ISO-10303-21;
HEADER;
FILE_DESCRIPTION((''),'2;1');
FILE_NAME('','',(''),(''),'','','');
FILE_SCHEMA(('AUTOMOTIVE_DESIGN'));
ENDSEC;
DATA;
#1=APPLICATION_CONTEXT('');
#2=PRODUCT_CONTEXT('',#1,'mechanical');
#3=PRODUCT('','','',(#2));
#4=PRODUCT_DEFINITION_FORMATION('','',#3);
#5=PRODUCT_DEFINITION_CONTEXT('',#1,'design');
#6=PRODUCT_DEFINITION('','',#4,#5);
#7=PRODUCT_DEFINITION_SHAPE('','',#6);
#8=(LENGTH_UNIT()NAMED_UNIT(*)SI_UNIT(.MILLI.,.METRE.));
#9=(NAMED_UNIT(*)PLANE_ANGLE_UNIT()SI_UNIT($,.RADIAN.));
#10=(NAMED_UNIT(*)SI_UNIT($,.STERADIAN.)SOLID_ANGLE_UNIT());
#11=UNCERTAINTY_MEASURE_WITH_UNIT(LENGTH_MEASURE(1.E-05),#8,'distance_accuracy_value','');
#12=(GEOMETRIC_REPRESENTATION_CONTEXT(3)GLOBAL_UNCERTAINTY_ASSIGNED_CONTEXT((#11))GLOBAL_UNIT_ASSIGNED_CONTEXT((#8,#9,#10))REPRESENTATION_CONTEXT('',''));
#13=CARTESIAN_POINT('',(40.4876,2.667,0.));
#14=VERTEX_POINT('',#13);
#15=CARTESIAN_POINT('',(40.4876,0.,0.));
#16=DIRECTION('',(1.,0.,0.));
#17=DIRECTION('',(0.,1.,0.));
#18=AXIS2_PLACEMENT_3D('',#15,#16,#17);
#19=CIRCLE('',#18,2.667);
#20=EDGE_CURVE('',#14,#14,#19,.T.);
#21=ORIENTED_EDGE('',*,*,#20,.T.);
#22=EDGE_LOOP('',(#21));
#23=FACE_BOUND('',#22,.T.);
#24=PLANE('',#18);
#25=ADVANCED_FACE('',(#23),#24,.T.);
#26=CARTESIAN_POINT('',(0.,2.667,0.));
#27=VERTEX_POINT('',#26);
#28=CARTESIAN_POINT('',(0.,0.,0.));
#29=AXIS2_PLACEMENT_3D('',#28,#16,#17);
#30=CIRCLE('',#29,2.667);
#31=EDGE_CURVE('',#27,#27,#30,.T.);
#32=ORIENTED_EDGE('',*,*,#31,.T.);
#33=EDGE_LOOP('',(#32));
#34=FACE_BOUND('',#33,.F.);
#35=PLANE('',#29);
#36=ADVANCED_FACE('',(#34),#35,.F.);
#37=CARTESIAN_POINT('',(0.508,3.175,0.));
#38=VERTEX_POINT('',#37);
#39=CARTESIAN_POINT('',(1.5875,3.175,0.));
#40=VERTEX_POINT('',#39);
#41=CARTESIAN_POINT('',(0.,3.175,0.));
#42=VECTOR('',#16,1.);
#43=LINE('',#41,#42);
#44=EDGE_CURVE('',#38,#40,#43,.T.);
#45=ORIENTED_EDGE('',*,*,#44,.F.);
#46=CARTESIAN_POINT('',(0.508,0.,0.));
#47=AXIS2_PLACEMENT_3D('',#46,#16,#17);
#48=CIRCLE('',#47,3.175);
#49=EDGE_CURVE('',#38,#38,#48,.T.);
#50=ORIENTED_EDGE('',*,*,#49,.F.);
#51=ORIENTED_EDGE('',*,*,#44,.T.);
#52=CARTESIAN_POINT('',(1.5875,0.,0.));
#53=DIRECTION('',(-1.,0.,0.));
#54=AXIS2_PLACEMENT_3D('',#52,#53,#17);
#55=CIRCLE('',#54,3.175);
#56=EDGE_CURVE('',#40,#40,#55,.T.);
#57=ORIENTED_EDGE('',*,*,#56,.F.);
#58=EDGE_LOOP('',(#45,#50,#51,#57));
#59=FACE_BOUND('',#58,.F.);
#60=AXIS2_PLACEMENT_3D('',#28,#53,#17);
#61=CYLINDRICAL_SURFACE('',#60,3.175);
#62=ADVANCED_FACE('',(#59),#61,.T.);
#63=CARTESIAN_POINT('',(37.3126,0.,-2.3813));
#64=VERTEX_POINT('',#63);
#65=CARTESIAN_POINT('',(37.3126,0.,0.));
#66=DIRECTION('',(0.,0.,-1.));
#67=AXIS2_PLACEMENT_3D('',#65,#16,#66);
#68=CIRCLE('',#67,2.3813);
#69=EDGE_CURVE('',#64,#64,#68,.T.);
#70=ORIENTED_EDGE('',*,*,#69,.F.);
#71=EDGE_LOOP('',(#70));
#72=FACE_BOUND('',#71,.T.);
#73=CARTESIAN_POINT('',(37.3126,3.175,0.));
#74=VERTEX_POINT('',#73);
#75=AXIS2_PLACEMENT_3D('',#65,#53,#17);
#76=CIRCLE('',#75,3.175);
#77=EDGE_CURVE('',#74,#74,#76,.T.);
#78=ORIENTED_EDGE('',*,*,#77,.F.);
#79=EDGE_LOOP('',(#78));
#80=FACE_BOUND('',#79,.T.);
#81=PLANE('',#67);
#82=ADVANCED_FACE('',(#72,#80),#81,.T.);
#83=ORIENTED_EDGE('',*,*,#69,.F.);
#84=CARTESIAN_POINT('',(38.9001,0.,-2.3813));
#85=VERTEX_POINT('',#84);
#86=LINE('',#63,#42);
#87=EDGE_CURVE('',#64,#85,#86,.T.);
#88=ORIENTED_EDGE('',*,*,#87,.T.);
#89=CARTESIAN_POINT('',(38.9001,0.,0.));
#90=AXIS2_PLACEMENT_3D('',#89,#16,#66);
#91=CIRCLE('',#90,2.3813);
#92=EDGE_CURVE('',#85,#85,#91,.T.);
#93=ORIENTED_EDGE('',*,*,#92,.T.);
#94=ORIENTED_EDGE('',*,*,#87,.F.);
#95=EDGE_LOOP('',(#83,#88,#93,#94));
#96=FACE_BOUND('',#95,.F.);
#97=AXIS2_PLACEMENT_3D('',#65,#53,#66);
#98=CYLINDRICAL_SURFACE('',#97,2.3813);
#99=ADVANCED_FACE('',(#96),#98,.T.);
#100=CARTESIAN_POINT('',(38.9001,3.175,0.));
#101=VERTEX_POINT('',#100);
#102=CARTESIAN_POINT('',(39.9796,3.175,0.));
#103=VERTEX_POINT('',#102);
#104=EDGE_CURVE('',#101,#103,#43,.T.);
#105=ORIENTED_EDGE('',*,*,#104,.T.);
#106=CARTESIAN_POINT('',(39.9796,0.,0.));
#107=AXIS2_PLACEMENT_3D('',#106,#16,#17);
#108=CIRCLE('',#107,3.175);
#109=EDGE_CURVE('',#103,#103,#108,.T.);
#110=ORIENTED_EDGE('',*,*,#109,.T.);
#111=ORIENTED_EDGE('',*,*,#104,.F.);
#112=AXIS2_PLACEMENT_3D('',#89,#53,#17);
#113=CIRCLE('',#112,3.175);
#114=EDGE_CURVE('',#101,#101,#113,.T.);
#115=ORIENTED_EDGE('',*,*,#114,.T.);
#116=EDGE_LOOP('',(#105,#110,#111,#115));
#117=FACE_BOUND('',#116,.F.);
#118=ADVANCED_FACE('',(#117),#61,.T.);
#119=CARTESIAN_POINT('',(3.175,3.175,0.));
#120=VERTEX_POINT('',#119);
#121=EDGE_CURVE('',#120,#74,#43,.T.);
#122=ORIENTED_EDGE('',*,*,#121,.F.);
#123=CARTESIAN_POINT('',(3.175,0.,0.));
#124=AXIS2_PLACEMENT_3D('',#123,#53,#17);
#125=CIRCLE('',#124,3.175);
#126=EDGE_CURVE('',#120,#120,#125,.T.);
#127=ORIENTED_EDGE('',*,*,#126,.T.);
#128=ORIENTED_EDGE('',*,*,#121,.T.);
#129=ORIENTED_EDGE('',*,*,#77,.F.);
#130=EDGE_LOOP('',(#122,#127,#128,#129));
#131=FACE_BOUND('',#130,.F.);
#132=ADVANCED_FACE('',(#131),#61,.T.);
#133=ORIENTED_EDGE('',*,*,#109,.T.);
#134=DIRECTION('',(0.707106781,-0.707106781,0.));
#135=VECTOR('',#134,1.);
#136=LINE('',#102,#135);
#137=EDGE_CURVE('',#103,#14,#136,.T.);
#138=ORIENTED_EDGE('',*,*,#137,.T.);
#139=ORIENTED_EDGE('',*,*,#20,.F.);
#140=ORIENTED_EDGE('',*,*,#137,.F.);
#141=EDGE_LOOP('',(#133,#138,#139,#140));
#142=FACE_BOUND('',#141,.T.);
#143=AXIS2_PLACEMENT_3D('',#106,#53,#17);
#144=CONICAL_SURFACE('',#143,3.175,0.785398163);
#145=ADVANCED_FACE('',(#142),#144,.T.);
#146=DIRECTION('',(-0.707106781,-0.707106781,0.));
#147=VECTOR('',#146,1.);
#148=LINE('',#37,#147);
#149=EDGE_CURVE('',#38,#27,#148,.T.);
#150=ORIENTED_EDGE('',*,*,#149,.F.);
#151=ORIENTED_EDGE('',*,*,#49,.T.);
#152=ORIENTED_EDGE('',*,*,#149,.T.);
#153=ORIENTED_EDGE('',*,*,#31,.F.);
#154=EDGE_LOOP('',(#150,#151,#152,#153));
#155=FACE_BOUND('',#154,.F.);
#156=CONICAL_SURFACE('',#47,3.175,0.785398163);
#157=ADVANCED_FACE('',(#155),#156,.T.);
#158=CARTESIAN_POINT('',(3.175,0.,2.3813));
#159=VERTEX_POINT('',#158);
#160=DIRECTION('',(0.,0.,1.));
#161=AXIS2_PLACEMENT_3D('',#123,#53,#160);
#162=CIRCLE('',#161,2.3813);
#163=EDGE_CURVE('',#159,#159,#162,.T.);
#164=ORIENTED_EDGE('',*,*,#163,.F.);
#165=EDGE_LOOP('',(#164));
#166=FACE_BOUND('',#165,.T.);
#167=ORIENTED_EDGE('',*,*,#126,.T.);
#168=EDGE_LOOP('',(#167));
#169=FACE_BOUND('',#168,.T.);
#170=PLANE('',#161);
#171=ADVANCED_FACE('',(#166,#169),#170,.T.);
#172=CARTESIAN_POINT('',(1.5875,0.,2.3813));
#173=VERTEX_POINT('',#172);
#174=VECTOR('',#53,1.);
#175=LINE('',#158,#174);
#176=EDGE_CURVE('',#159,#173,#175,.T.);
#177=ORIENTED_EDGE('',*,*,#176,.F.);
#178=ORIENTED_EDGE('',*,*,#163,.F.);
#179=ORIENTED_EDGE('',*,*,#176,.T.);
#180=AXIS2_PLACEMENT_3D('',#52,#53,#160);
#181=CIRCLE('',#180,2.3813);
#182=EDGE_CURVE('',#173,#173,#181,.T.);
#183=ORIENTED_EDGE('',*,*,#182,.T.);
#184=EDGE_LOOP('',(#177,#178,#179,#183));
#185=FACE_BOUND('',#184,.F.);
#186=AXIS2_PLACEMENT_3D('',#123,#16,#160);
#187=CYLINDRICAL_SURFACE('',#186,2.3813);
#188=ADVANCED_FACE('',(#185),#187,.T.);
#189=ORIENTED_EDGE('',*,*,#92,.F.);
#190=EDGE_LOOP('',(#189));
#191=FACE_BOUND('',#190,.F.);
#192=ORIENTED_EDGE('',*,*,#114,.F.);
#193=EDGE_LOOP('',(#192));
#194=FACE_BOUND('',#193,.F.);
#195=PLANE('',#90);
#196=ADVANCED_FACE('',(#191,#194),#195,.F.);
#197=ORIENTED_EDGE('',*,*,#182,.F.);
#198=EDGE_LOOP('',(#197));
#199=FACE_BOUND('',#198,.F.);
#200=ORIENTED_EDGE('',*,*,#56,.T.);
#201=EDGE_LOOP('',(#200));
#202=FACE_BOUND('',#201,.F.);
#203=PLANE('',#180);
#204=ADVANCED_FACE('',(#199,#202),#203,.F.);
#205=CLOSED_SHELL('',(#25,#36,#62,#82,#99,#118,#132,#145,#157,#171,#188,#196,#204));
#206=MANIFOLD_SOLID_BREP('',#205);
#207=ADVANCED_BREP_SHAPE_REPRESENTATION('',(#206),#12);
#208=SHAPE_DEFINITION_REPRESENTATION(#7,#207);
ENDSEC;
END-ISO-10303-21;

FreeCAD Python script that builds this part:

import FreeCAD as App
import Part
import Sketcher
Q = App.Units.Quantity


def edges_at(feature, points):
    """Names of the edges that pass closest to the given points."""
    edges = feature.Shape.Edges
    near = lambda p: min(range(len(edges)), key=lambda i: edges[i].distToShape(Part.Vertex(*p))[0])
    return sorted({f"Edge{near(p) + 1}" for p in points})

doc = App.newDocument("Part")
body = doc.addObject("PartDesign::Body", "Body")

sketch1 = body.newObject("Sketcher::SketchObject", "Sketch")
sketch1.AttachmentSupport = (doc.getObject("YZ_Plane"), [""])
sketch1.MapMode = "FlatFace"
sketch1.addGeometry(Part.Circle(App.Vector(0, 0, 0), App.Vector(0, 0, 1), 3.175), False)
sketch1.addConstraint([
    Sketcher.Constraint("Coincident", 0, 3, -1, 1),
    Sketcher.Constraint("Diameter", 0, Q("0.25 in")),
])
pad1 = body.newObject("PartDesign::Pad", "Pad")
pad1.Profile = sketch1
pad1.Length = Q("1.594 in")
doc.recompute()

chamfer = body.newObject("PartDesign::Chamfer", "Chamfer")
chamfer.Base = (pad1, edges_at(pad1, [(40.488, -3.175, 0), (0, -3.175, 0)]))
chamfer.Size = Q("0.02 in")

sketch2 = body.newObject("Sketcher::SketchObject", "Sketch001")
sketch2.AttachmentSupport = (doc.getObject("YZ_Plane"), [""])
sketch2.MapMode = "FlatFace"
sketch2.AttachmentOffset = App.Placement(App.Vector(0, 0, 1.469 * 25.4), App.Rotation())
sketch2.addGeometry([
    Part.Circle(App.Vector(0, 0, 0), App.Vector(0, 0, 1), 3.175),
    Part.Circle(App.Vector(0, 0, 0), App.Vector(0, 0, 1), 2.3813),
], False)
sketch2.addConstraint([
    Sketcher.Constraint("Coincident", 0, 3, -1, 1),
    Sketcher.Constraint("Coincident", 1, 3, -1, 1),
    Sketcher.Constraint("Diameter", 1, Q("0.1875 in")),
    Sketcher.Constraint("Diameter", 0, Q("0.25 in")),
])
pocket1 = body.newObject("PartDesign::Pocket", "Pocket")
pocket1.Profile = sketch2
pocket1.Length = Q("0.0625 in")
pocket1.Reversed = True

sketch3 = body.newObject("Sketcher::SketchObject", "Sketch002")
sketch3.AttachmentSupport = (doc.getObject("YZ_Plane"), [""])
sketch3.MapMode = "FlatFace"
sketch3.AttachmentOffset = App.Placement(App.Vector(0, 0, 0.125 * 25.4), App.Rotation())
sketch3.addGeometry([
    Part.Circle(App.Vector(0, 0, 0), App.Vector(0, 0, 1), 3.175),
    Part.Circle(App.Vector(0, 0, 0), App.Vector(0, 0, 1), 2.3813),
], False)
sketch3.addConstraint([
    Sketcher.Constraint("Coincident", 0, 3, -1, 1),
    Sketcher.Constraint("Coincident", 1, 3, -1, 1),
    Sketcher.Constraint("Diameter", 1, Q("0.1875 in")),
    Sketcher.Constraint("Diameter", 0, Q("0.25 in")),
])
pocket2 = body.newObject("PartDesign::Pocket", "Pocket001")
pocket2.Profile = sketch3
pocket2.Length = Q("0.0625 in")

doc.recompute()
